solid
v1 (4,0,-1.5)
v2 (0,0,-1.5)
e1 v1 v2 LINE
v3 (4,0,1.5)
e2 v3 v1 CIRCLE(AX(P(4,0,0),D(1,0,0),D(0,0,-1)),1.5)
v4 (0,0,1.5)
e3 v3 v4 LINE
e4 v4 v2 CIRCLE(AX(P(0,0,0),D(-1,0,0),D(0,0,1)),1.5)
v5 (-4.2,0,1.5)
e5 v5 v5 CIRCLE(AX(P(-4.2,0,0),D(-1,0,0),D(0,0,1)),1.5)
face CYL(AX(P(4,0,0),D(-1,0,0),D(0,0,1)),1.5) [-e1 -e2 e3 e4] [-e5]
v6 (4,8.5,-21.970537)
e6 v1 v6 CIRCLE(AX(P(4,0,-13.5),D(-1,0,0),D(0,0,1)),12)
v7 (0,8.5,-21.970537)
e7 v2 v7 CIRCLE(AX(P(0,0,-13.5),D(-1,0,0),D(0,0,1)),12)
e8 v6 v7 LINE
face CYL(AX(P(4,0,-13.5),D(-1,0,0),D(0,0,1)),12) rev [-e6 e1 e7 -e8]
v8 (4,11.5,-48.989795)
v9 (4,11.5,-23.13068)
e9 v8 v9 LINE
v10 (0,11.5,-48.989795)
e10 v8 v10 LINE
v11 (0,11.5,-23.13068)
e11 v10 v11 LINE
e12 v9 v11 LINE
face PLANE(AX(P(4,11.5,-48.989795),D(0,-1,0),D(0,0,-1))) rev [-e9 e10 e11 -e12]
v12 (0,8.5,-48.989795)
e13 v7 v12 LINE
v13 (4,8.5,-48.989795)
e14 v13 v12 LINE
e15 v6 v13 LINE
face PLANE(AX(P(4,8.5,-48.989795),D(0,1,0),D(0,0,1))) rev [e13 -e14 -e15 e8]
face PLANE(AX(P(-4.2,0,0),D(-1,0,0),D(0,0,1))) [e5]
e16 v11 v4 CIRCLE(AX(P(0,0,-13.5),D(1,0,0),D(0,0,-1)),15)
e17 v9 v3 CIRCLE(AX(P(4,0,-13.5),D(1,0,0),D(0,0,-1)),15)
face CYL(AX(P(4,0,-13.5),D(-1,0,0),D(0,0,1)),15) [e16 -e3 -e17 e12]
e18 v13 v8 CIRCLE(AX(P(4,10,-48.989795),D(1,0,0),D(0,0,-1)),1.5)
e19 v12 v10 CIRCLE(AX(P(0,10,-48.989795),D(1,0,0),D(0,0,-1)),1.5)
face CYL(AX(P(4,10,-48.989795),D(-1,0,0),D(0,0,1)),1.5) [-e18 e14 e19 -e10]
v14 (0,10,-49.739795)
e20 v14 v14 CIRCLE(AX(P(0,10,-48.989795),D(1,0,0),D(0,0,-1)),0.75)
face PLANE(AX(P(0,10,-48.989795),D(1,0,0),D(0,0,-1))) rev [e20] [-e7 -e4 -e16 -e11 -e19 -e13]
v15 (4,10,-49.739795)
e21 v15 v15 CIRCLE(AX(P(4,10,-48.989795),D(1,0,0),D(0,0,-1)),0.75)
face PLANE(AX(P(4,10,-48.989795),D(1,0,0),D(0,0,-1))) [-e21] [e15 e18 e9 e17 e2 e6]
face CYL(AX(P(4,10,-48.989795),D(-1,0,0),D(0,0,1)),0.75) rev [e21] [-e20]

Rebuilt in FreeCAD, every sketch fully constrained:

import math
import FreeCAD as App
import Part
import Sketcher
from FreeCAD import Vector
Q = App.Units.Quantity

doc = App.newDocument("Part")
body = doc.addObject("PartDesign::Body", "Body")

# Sketch on YZ plane
sketch1 = body.newObject("Sketcher::SketchObject", "Sketch")
sketch1.AttachmentSupport = (doc.getObject("YZ_Plane"), [""])
sketch1.MapMode = "FlatFace"
sketch1.addGeometry(Part.LineSegment(Vector(11.5, -49, 0), Vector(11.5, -23.1, 0)), False)
sketch1.addGeometry(Part.ArcOfCircle(Part.Circle(Vector(0, -13.5, 0), Vector(0, 0, 1), 15), math.radians(-40), math.radians(90)), False)
sketch1.addGeometry(Part.ArcOfCircle(Part.Circle(Vector(0, 0, 0), Vector(0, 0, 1), 1.5), math.radians(90), math.radians(270)), False)
sketch1.addGeometry(Part.ArcOfCircle(Part.Circle(Vector(0, -13.5, 0), Vector(0, 0, 1), 12), math.radians(-45), math.radians(90)), False)
sketch1.addGeometry(Part.LineSegment(Vector(8.5, -22, 0), Vector(8.5, -49, 0)), False)
sketch1.addGeometry(Part.ArcOfCircle(Part.Circle(Vector(10, -49, 0), Vector(0, 0, 1), 1.5), math.radians(180), math.radians(360)), False)
sketch1.addGeometry(Part.Circle(Vector(10, -49, 0), Vector(0, 0, 1), 0.8), False)
sketch1.addConstraint(Sketcher.Constraint("Coincident", 0, 2, 1, 1))
sketch1.addConstraint(Sketcher.Constraint("Tangent", 1, 2, 2, 1))
sketch1.addConstraint(Sketcher.Constraint("Tangent", 2, 2, 3, 2))
sketch1.addConstraint(Sketcher.Constraint("Coincident", 3, 1, 4, 1))
sketch1.addConstraint(Sketcher.Constraint("Tangent", 4, 2, 5, 1))
sketch1.addConstraint(Sketcher.Constraint("Tangent", 5, 2, 0, 1))
sketch1.addConstraint(Sketcher.Constraint("Vertical", 0))
sketch1.addConstraint(Sketcher.Constraint("Vertical", 4))
sketch1.addConstraint(Sketcher.Constraint("Coincident", 2, 3, -1, 1))
sketch1.addConstraint(Sketcher.Constraint("Coincident", 3, 3, 1, 3))
sketch1.addConstraint(Sketcher.Constraint("Coincident", 6, 3, 5, 3))
sketch1.addConstraint(Sketcher.Constraint("Equal", 2, 5))
sketch1.addConstraint(Sketcher.Constraint("PointOnObject", 1, 3, -2))
sketch1.addConstraint(Sketcher.Constraint("Radius", 1, Q("15 mm")))
sketch1.addConstraint(Sketcher.Constraint("Radius", 3, Q("12 mm")))
sketch1.addConstraint(Sketcher.Constraint("Diameter", 6, Q("1.5 mm")))
sketch1.addConstraint(Sketcher.Constraint("DistanceX", -1, 1, 5, 3, Q("10 mm")))
sketch1.addConstraint(Sketcher.Constraint("DistanceY", 0, 1, 0, 2, Q("25.859115 mm")))
pad1 = body.newObject("PartDesign::Pad", "Pad")
pad1.Profile = sketch1
pad1.Length = 4

# Sketch on YZ plane
sketch2 = body.newObject("Sketcher::SketchObject", "Sketch001")
sketch2.AttachmentSupport = (doc.getObject("YZ_Plane"), [""])
sketch2.MapMode = "FlatFace"
sketch2.AttachmentOffset = App.Placement(Vector(0, 0, -4.2), App.Rotation())
sketch2.addGeometry(Part.Circle(Vector(0, 0, 0), Vector(0, 0, 1), 1.5), False)
sketch2.addConstraint(Sketcher.Constraint("Coincident", 0, 3, -1, 1))
sketch2.addConstraint(Sketcher.Constraint("Diameter", 0, Q("3 mm")))
pad2 = body.newObject("PartDesign::Pad", "Pad001")
pad2.Profile = sketch2
pad2.Length = 4.2

doc.recompute()
